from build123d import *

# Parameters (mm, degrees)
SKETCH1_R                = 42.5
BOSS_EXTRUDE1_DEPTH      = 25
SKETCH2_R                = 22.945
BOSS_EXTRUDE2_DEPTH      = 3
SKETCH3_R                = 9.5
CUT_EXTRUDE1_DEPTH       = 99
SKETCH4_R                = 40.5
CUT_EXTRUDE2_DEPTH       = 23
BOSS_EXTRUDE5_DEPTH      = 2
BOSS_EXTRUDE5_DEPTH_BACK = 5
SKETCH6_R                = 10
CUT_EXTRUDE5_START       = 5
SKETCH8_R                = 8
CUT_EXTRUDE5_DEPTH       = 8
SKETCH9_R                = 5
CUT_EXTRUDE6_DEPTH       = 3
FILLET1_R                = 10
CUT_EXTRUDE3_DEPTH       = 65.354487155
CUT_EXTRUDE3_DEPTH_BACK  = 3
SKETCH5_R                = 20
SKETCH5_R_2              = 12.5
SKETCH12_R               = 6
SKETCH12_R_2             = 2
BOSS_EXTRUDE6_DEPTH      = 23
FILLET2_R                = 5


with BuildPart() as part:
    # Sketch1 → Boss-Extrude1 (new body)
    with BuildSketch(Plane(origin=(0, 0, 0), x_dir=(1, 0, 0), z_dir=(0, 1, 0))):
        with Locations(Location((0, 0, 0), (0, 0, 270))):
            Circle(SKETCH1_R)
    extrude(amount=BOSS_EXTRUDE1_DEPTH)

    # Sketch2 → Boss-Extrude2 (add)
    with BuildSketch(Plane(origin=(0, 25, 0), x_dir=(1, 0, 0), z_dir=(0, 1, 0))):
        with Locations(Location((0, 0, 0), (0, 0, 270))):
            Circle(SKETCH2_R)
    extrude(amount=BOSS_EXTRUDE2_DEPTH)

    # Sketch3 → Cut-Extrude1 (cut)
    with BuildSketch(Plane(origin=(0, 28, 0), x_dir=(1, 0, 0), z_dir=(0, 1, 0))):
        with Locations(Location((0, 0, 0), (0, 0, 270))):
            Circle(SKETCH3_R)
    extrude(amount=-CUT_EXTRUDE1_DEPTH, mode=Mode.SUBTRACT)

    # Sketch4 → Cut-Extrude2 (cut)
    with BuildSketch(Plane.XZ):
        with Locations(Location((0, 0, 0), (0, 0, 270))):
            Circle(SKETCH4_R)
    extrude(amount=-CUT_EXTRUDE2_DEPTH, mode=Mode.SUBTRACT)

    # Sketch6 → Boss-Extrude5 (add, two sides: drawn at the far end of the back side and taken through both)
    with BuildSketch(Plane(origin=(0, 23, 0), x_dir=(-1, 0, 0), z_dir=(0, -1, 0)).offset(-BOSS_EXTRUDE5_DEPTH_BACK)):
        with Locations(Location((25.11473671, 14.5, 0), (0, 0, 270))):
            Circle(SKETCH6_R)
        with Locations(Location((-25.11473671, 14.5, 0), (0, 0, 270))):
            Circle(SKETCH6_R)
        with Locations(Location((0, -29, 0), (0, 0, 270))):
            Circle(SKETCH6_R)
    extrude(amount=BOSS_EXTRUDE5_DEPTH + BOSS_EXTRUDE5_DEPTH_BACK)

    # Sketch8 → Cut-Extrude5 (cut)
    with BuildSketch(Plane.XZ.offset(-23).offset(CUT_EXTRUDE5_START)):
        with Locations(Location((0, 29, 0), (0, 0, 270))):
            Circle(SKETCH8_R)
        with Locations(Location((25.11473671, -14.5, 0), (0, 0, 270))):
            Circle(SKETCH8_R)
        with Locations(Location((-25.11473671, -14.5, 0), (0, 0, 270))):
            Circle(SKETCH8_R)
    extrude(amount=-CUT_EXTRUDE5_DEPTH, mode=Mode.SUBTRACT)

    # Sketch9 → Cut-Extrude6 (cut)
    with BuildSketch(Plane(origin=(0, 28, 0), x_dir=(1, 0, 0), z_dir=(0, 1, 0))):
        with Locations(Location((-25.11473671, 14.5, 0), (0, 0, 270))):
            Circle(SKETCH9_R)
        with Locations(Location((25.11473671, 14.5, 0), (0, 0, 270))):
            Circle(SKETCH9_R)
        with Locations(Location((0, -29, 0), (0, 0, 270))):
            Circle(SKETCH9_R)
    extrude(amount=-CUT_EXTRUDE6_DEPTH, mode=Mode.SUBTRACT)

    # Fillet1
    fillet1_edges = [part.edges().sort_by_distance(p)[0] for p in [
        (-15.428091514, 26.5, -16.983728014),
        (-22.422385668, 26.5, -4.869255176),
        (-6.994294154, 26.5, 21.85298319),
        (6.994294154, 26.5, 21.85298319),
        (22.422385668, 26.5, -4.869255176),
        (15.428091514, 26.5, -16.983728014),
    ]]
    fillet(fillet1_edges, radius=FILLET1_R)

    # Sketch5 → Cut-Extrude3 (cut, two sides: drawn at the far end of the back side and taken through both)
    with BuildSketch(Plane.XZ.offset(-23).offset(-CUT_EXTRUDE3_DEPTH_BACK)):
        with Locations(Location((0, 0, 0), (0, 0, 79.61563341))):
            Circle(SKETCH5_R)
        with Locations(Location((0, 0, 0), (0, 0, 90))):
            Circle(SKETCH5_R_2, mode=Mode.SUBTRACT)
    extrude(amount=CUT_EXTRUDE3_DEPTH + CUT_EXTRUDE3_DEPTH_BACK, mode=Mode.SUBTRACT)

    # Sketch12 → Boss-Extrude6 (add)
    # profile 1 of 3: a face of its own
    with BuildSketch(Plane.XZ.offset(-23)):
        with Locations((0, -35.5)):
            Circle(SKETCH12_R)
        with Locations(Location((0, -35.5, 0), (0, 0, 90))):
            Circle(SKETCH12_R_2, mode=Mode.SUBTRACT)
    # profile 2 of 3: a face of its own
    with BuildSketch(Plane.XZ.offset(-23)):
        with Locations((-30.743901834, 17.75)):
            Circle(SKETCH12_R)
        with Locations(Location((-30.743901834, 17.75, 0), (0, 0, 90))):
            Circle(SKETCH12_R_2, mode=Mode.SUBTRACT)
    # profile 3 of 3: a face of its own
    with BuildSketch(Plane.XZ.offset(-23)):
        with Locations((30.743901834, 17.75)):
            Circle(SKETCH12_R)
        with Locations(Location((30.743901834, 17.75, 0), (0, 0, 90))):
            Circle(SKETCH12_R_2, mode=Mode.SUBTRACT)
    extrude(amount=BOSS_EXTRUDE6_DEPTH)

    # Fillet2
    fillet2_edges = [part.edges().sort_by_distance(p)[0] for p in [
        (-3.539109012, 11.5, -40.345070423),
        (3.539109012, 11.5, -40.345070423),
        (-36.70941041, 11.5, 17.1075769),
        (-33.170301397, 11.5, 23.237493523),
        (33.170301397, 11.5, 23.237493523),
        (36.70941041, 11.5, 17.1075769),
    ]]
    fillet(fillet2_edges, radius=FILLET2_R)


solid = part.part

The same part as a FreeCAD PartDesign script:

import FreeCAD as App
import Part
import Sketcher


def edges_at(feature, points):
    """Names of the edges that pass closest to the given points."""
    edges = feature.Shape.Edges
    near = lambda p: min(range(len(edges)), key=lambda i: edges[i].distToShape(Part.Vertex(*p))[0])
    return sorted({f"Edge{near(p) + 1}" for p in points})

doc = App.newDocument("Part")
body = doc.addObject("PartDesign::Body", "Body")

# Sketch on XZ plane
sketch1 = body.newObject("Sketcher::SketchObject", "Sketch")
sketch1.AttachmentSupport = (doc.getObject("XZ_Plane"), [""])
sketch1.MapMode = "FlatFace"
sketch1.addGeometry(Part.Circle(App.Vector(0, 0, 0), App.Vector(0, 0, 1), 42.5), False)
sketch1.addConstraint([
    Sketcher.Constraint("Coincident", 0, 3, -1, 1),
    Sketcher.Constraint("Diameter", 0, 85.0),
])
pad1 = body.newObject("PartDesign::Pad", "Pad")
pad1.Profile = sketch1
pad1.Length = 25
pad1.Reversed = True

# Sketch on XZ plane
sketch2 = body.newObject("Sketcher::SketchObject", "Sketch001")
sketch2.AttachmentSupport = (doc.getObject("XZ_Plane"), [""])
sketch2.MapMode = "FlatFace"
sketch2.AttachmentOffset = App.Placement(App.Vector(0, 0, -25), App.Rotation())
sketch2.addGeometry(Part.Circle(App.Vector(0, 0, 0), App.Vector(0, 0, 1), 22.945), False)
sketch2.addConstraint([
    Sketcher.Constraint("Coincident", 0, 3, -1, 1),
    Sketcher.Constraint("Diameter", 0, 45.89),
])
pad2 = body.newObject("PartDesign::Pad", "Pad001")
pad2.Profile = sketch2
pad2.Length = 3
pad2.Reversed = True

# Sketch on XZ plane
sketch3 = body.newObject("Sketcher::SketchObject", "Sketch002")
sketch3.AttachmentSupport = (doc.getObject("XZ_Plane"), [""])
sketch3.MapMode = "FlatFace"
sketch3.AttachmentOffset = App.Placement(App.Vector(0, 0, -28), App.Rotation())
sketch3.addGeometry(Part.Circle(App.Vector(0, 0, 0), App.Vector(0, 0, 1), 9.5), False)
sketch3.addConstraint([
    Sketcher.Constraint("Coincident", 0, 3, -1, 1),
    Sketcher.Constraint("Diameter", 0, 19.0),
])
pocket1 = body.newObject("PartDesign::Pocket", "Pocket")
pocket1.Profile = sketch3
pocket1.Length = 99
pocket1.Reversed = True

# Sketch on XZ plane
sketch4 = body.newObject("Sketcher::SketchObject", "Sketch003")
sketch4.AttachmentSupport = (doc.getObject("XZ_Plane"), [""])
sketch4.MapMode = "FlatFace"
sketch4.addGeometry(Part.Circle(App.Vector(0, 0, 0), App.Vector(0, 0, 1), 40.5), False)
sketch4.addConstraint([
    Sketcher.Constraint("Coincident", 0, 3, -1, 1),
    Sketcher.Constraint("Diameter", 0, 81.0),
])
pocket2 = body.newObject("PartDesign::Pocket", "Pocket001")
pocket2.Profile = sketch4
pocket2.Length = 23

# Sketch on XZ plane
sketch5 = body.newObject("Sketcher::SketchObject", "Sketch004")
sketch5.AttachmentSupport = (doc.getObject("XZ_Plane"), [""])
sketch5.MapMode = "FlatFace"
sketch5.AttachmentOffset = App.Placement(App.Vector(0, 0, -23), App.Rotation())
sketch5.addGeometry([
    Part.Circle(App.Vector(-25.114737, -14.5, 0), App.Vector(0, 0, 1), 10),
    Part.Circle(App.Vector(25.114737, -14.5, 0), App.Vector(0, 0, 1), 10),
    Part.Circle(App.Vector(0, 29, 0), App.Vector(0, 0, 1), 10),
], False)
sketch5.addConstraint([
    Sketcher.Constraint("Equal", 0, 1),
    Sketcher.Constraint("Equal", 1, 2),
    Sketcher.Constraint("Symmetric", 0, 3, 1, 3, -2),
    Sketcher.Constraint("PointOnObject", 2, 3, -2),
    Sketcher.Constraint("Diameter", 0, 20.0),
    Sketcher.Constraint("DistanceY", -1, 1, 2, 3, 29.0),
    Sketcher.Constraint("DistanceY", 0, 3, -1, 1, 14.5),
    Sketcher.Constraint("DistanceX", 0, 3, -1, 1, 25.114737),
])
pad3 = body.newObject("PartDesign::Pad", "Pad002")
pad3.Profile = sketch5
pad3.Type = "TwoLengths"
pad3.Length = 2
pad3.Length2 = 5

# Sketch on XZ plane
sketch6 = body.newObject("Sketcher::SketchObject", "Sketch005")
sketch6.AttachmentSupport = (doc.getObject("XZ_Plane"), [""])
sketch6.MapMode = "FlatFace"
sketch6.AttachmentOffset = App.Placement(App.Vector(0, 0, -18), App.Rotation())
sketch6.addGeometry([
    Part.Circle(App.Vector(0, 29, 0), App.Vector(0, 0, 1), 8),
    Part.Circle(App.Vector(25.114737, -14.5, 0), App.Vector(0, 0, 1), 8),
    Part.Circle(App.Vector(-25.114737, -14.5, 0), App.Vector(0, 0, 1), 8),
], False)
sketch6.addConstraint([
    Sketcher.Constraint("Equal", 0, 1),
    Sketcher.Constraint("Equal", 1, 2),
    Sketcher.Constraint("Symmetric", 1, 3, 2, 3, -2),
    Sketcher.Constraint("PointOnObject", 0, 3, -2),
    Sketcher.Constraint("Diameter", 0, 16.0),
    Sketcher.Constraint("DistanceY", -1, 1, 0, 3, 29.0),
    Sketcher.Constraint("DistanceY", 1, 3, -1, 1, 14.5),
    Sketcher.Constraint("DistanceX", -1, 1, 1, 3, 25.114737),
])
pocket3 = body.newObject("PartDesign::Pocket", "Pocket002")
pocket3.Profile = sketch6
pocket3.Length = 8

# Sketch on XZ plane
sketch7 = body.newObject("Sketcher::SketchObject", "Sketch006")
sketch7.AttachmentSupport = (doc.getObject("XZ_Plane"), [""])
sketch7.MapMode = "FlatFace"
sketch7.AttachmentOffset = App.Placement(App.Vector(0, 0, -28), App.Rotation())
sketch7.addGeometry([
    Part.Circle(App.Vector(-25.114737, -14.5, 0), App.Vector(0, 0, 1), 5),
    Part.Circle(App.Vector(25.114737, -14.5, 0), App.Vector(0, 0, 1), 5),
    Part.Circle(App.Vector(0, 29, 0), App.Vector(0, 0, 1), 5),
], False)
sketch7.addConstraint([
    Sketcher.Constraint("Equal", 0, 1),
    Sketcher.Constraint("Equal", 1, 2),
    Sketcher.Constraint("Symmetric", 0, 3, 1, 3, -2),
    Sketcher.Constraint("PointOnObject", 2, 3, -2),
    Sketcher.Constraint("Diameter", 0, 10.0),
    Sketcher.Constraint("DistanceY", -1, 1, 2, 3, 29.0),
    Sketcher.Constraint("DistanceY", 0, 3, -1, 1, 14.5),
    Sketcher.Constraint("DistanceX", 0, 3, -1, 1, 25.114737),
])
pocket4 = body.newObject("PartDesign::Pocket", "Pocket003")
pocket4.Profile = sketch7
pocket4.Length = 3
pocket4.Reversed = True
doc.recompute()

fillet = body.newObject("PartDesign::Fillet", "Fillet")
fillet.Base = (pocket4, edges_at(pocket4, [
    (-15.428, 26.5, -16.984),
    (-22.422, 26.5, -4.869),
    (-6.994, 26.5, 21.853),
    (6.994, 26.5, 21.853),
    (22.422, 26.5, -4.869),
    (15.428, 26.5, -16.984),
]))
fillet.Radius = 10

# Sketch on XZ plane
sketch8 = body.newObject("Sketcher::SketchObject", "Sketch007")
sketch8.AttachmentSupport = (doc.getObject("XZ_Plane"), [""])
sketch8.MapMode = "FlatFace"
sketch8.AttachmentOffset = App.Placement(App.Vector(0, 0, -23), App.Rotation())
sketch8.addGeometry([
    Part.Circle(App.Vector(0, 0, 0), App.Vector(0, 0, 1), 20),
    Part.Circle(App.Vector(0, 0, 0), App.Vector(0, 0, 1), 12.5),
], False)
sketch8.addConstraint([
    Sketcher.Constraint("Coincident", 0, 3, -1, 1),
    Sketcher.Constraint("Coincident", 1, 3, -1, 1),
    Sketcher.Constraint("Diameter", 0, 40.0),
    Sketcher.Constraint("Diameter", 1, 25.0),
])
pocket5 = body.newObject("PartDesign::Pocket", "Pocket004")
pocket5.Profile = sketch8
pocket5.Type = "TwoLengths"
pocket5.Length = 65.354487
pocket5.Length2 = 3
pocket5.Reversed = True

# Sketch on XZ plane
sketch9 = body.newObject("Sketcher::SketchObject", "Sketch008")
sketch9.AttachmentSupport = (doc.getObject("XZ_Plane"), [""])
sketch9.MapMode = "FlatFace"
sketch9.AttachmentOffset = App.Placement(App.Vector(0, 0, -23), App.Rotation())
sketch9.addGeometry([
    Part.Circle(App.Vector(0, -35.5, 0), App.Vector(0, 0, 1), 6),  # 0
    Part.Circle(App.Vector(0, -35.5, 0), App.Vector(0, 0, 1), 2),  # 1
    Part.Circle(App.Vector(-30.743902, 17.75, 0), App.Vector(0, 0, 1), 6),  # 2
    Part.Circle(App.Vector(-30.743902, 17.75, 0), App.Vector(0, 0, 1), 2),  # 3
    Part.Circle(App.Vector(30.743902, 17.75, 0), App.Vector(0, 0, 1), 6),  # 4
    Part.Circle(App.Vector(30.743902, 17.75, 0), App.Vector(0, 0, 1), 2),  # 5
], False)
sketch9.addConstraint([
    Sketcher.Constraint("Coincident", 1, 3, 0, 3),
    Sketcher.Constraint("Coincident", 3, 3, 2, 3),
    Sketcher.Constraint("Coincident", 5, 3, 4, 3),
    Sketcher.Constraint("Equal", 0, 2),
    Sketcher.Constraint("Equal", 1, 3),
    Sketcher.Constraint("Equal", 2, 4),
    Sketcher.Constraint("Equal", 3, 5),
    Sketcher.Constraint("Symmetric", 2, 3, 4, 3, -2),
    Sketcher.Constraint("PointOnObject", 0, 3, -2),
    Sketcher.Constraint("Diameter", 0, 12.0),
    Sketcher.Constraint("Diameter", 1, 4.0),
    Sketcher.Constraint("DistanceY", 0, 3, -1, 1, 35.5),
    Sketcher.Constraint("DistanceY", -1, 1, 2, 3, 17.75),
    Sketcher.Constraint("DistanceX", 2, 3, -1, 1, 30.743902),
])
pad4 = body.newObject("PartDesign::Pad", "Pad003")
pad4.Profile = sketch9
pad4.Length = 23
doc.recompute()

fillet2 = body.newObject("PartDesign::Fillet", "Fillet001")
fillet2.Base = (pad4, edges_at(pad4, [
    (-3.539, 11.5, -40.345),
    (3.539, 11.5, -40.345),
    (-36.709, 11.5, 17.108),
    (-33.17, 11.5, 23.237),
    (33.17, 11.5, 23.237),
    (36.709, 11.5, 17.108),
]))
fillet2.Radius = 5

doc.recompute()
